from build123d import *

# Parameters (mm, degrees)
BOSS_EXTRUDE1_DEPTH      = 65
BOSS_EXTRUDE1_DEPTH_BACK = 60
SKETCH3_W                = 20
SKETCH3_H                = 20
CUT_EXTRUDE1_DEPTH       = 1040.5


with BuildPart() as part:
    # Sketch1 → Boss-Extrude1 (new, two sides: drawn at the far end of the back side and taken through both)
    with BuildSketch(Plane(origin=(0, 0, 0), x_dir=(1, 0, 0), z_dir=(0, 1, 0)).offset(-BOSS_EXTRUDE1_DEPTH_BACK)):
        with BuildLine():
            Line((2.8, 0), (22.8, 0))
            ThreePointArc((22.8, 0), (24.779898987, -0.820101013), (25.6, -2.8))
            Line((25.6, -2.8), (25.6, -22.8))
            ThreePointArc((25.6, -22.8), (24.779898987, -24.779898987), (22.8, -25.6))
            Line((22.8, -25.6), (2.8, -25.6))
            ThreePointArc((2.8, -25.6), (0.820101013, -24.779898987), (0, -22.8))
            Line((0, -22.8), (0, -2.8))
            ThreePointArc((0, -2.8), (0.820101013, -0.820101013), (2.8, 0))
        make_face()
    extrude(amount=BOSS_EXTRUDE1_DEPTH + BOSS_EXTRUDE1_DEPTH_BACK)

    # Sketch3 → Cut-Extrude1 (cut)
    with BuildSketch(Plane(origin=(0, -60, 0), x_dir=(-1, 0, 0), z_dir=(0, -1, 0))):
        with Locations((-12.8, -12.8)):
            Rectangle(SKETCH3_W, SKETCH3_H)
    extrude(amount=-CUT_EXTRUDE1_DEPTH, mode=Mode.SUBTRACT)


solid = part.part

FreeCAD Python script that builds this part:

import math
import FreeCAD as App
import Part
import Sketcher

V = App.Vector


def add_polygon(sketch, points):
    """Adds a closed chain of lines whose ends are joined by coincident constraints."""
    first, n = sketch.GeometryCount, len(points)
    for a, b in zip(points, points[1:] + points[:1]):
        sketch.addGeometry(Part.LineSegment(App.Vector(*a, 0), App.Vector(*b, 0)), False)
    for i in range(n):
        sketch.addConstraint(Sketcher.Constraint("Coincident", first + i, 2, first + (i + 1) % n, 1))

doc = App.newDocument("Part")
params = doc.addObject("Spreadsheet::Sheet", "Params")
for row, (alias, value) in enumerate([
    ("sketch1_radius", "2.8 mm"),
    ("sketch1_width", "20 mm"),
    ("pad1_length", "65 mm"),
    ("pad1_length2", "60 mm"),
    ("sketch2_width", "20 mm"),
    ("pocket1_length", "1040.5 mm"),
], start=1):
    params.set(f"A{row}", alias)
    params.set(f"B{row}", "=" + value)
    params.setAlias(f"B{row}", alias)

body = doc.addObject("PartDesign::Body", "Body")

# Sketch on XZ plane
sketch1 = doc.addObject("Sketcher::SketchObject", "Sketch")
body.addObject(sketch1)
sketch1.AttachmentSupport = (doc.XZ_Plane, [""])
sketch1.MapMode = "FlatFace"
sketch1.addGeometry(Part.LineSegment(V(22.8, 0, 0), V(2.8, 0, 0)), False)
sketch1.addGeometry(Part.ArcOfCircle(Part.Circle(V(2.8, 2.8, 0), V(0, 0, 1), 2.8), math.radians(-180), math.radians(-90)), False)
sketch1.addGeometry(Part.LineSegment(V(0, 2.8, 0), V(0, 22.8, 0)), False)
sketch1.addGeometry(Part.ArcOfCircle(Part.Circle(V(2.8, 22.8, 0), V(0, 0, 1), 2.8), math.radians(90), math.radians(180)), False)
sketch1.addGeometry(Part.LineSegment(V(2.8, 25.6, 0), V(22.8, 25.6, 0)), False)
sketch1.addGeometry(Part.ArcOfCircle(Part.Circle(V(22.8, 22.8, 0), V(0, 0, 1), 2.8), math.radians(0), math.radians(90)), False)
sketch1.addGeometry(Part.LineSegment(V(25.6, 22.8, 0), V(25.6, 2.8, 0)), False)
sketch1.addGeometry(Part.ArcOfCircle(Part.Circle(V(22.8, 2.8, 0), V(0, 0, 1), 2.8), math.radians(-90), math.radians(0)), False)
sketch1.addConstraint(Sketcher.Constraint("Tangent", 0, 2, 1, 2))
sketch1.addConstraint(Sketcher.Constraint("Tangent", 1, 1, 2, 1))
sketch1.addConstraint(Sketcher.Constraint("Tangent", 2, 2, 3, 2))
sketch1.addConstraint(Sketcher.Constraint("Tangent", 3, 1, 4, 1))
sketch1.addConstraint(Sketcher.Constraint("Tangent", 4, 2, 5, 2))
sketch1.addConstraint(Sketcher.Constraint("Tangent", 5, 1, 6, 1))
sketch1.addConstraint(Sketcher.Constraint("Tangent", 6, 2, 7, 2))
sketch1.addConstraint(Sketcher.Constraint("Tangent", 7, 1, 0, 1))
sketch1.addConstraint(Sketcher.Constraint("Horizontal", 0))
sketch1.addConstraint(Sketcher.Constraint("Vertical", 2))
sketch1.addConstraint(Sketcher.Constraint("Horizontal", 4))
sketch1.addConstraint(Sketcher.Constraint("Vertical", 6))
sketch1.addConstraint(Sketcher.Constraint("Equal", 1, 3))
sketch1.addConstraint(Sketcher.Constraint("Equal", 3, 5))
sketch1.addConstraint(Sketcher.Constraint("Equal", 5, 7))
sketch1.addConstraint(Sketcher.Constraint("PointOnObject", 0, 2, -1))
sketch1.addConstraint(Sketcher.Constraint("PointOnObject", 1, 1, -2))
sketch1.addConstraint(Sketcher.Constraint("Equal", 4, 2))
sketch1.addConstraint(Sketcher.Constraint("Radius", 1, 2.8))
sketch1.addConstraint(Sketcher.Constraint("DistanceX", 0, 2, 0, 1, 20.0))
sketch1.setExpression("Constraints[18]", "Params.sketch1_radius")
sketch1.setExpression("Constraints[19]", "Params.sketch1_width")
pad1 = doc.addObject("PartDesign::Pad", "Pad")
body.addObject(pad1)
pad1.Profile = sketch1
pad1.Type = "TwoLengths"
pad1.setExpression("Length", "Params.pad1_length")
pad1.setExpression("Length2", "Params.pad1_length2")
pad1.Reversed = True

# Sketch on XZ plane
sketch2 = doc.addObject("Sketcher::SketchObject", "Sketch001")
body.addObject(sketch2)
sketch2.AttachmentSupport = (doc.XZ_Plane, [""])
sketch2.MapMode = "FlatFace"
sketch2.AttachmentOffset = App.Placement(V(0, 0, 60), App.Rotation())
add_polygon(sketch2, [(23, 3), (23, 23), (3, 23), (3, 3)])  # lines 0-3
sketch2.addConstraint(Sketcher.Constraint("Vertical", 0))
sketch2.addConstraint(Sketcher.Constraint("Horizontal", 1))
sketch2.addConstraint(Sketcher.Constraint("Vertical", 2))
sketch2.addConstraint(Sketcher.Constraint("Horizontal", 3))
sketch2.addConstraint(Sketcher.Constraint("Equal", 3, 0))
sketch2.addConstraint(Sketcher.Constraint("DistanceX", 1, 2, 1, 1, 20.0))
sketch2.addConstraint(Sketcher.Constraint("DistanceX", -1, 1, 0, 2, 22.8))
sketch2.addConstraint(Sketcher.Constraint("DistanceY", -1, 1, 0, 2, 22.8))
sketch2.setExpression("Constraints[9]", "Params.sketch2_width")
pocket1 = doc.addObject("PartDesign::Pocket", "Pocket")
body.addObject(pocket1)
pocket1.Profile = sketch2
pocket1.setExpression("Length", "Params.pocket1_length")

doc.recompute()
